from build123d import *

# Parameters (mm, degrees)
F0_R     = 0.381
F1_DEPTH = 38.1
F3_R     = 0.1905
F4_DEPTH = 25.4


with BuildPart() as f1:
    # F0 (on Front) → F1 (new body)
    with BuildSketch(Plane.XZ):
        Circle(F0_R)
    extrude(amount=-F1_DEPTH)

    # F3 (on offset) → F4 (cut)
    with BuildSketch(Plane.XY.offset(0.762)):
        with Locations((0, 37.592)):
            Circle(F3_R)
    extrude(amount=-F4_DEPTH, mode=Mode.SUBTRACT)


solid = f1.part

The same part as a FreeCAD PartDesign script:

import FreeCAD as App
import Part
import Sketcher
Q = App.Units.Quantity

doc = App.newDocument("Part")
body = doc.addObject("PartDesign::Body", "Body")

# Sketch on XZ plane
sketch1 = body.newObject("Sketcher::SketchObject", "Sketch")
sketch1.AttachmentSupport = (doc.getObject("XZ_Plane"), [""])
sketch1.MapMode = "FlatFace"
sketch1.addGeometry(Part.Circle(App.Vector(0, 0, 0), App.Vector(0, 0, 1), 0.381), False)
sketch1.addConstraint(Sketcher.Constraint("Coincident", 0, 3, -1, 1))
sketch1.addConstraint(Sketcher.Constraint("Diameter", 0, Q("0.03 in")))
pad1 = body.newObject("PartDesign::Pad", "Pad")
pad1.Profile = sketch1
pad1.Length = Q("1.5 in")
pad1.Reversed = True

# Sketch on XY plane
sketch2 = body.newObject("Sketcher::SketchObject", "Sketch001")
sketch2.AttachmentSupport = (doc.getObject("XY_Plane"), [""])
sketch2.MapMode = "FlatFace"
sketch2.AttachmentOffset = App.Placement(App.Vector(0, 0, 0.03 * 25.4), App.Rotation())
sketch2.addGeometry(Part.Circle(App.Vector(0, 37.592, 0), App.Vector(0, 0, 1), 0.1905), False)
sketch2.addConstraint(Sketcher.Constraint("PointOnObject", 0, 3, -2))
sketch2.addConstraint(Sketcher.Constraint("Diameter", 0, Q("0.015 in")))
sketch2.addConstraint(Sketcher.Constraint("DistanceY", -1, 1, 0, 3, Q("1.48 in")))
pocket1 = body.newObject("PartDesign::Pocket", "Pocket")
pocket1.Profile = sketch2
pocket1.Length = Q("1 in")

doc.recompute()
